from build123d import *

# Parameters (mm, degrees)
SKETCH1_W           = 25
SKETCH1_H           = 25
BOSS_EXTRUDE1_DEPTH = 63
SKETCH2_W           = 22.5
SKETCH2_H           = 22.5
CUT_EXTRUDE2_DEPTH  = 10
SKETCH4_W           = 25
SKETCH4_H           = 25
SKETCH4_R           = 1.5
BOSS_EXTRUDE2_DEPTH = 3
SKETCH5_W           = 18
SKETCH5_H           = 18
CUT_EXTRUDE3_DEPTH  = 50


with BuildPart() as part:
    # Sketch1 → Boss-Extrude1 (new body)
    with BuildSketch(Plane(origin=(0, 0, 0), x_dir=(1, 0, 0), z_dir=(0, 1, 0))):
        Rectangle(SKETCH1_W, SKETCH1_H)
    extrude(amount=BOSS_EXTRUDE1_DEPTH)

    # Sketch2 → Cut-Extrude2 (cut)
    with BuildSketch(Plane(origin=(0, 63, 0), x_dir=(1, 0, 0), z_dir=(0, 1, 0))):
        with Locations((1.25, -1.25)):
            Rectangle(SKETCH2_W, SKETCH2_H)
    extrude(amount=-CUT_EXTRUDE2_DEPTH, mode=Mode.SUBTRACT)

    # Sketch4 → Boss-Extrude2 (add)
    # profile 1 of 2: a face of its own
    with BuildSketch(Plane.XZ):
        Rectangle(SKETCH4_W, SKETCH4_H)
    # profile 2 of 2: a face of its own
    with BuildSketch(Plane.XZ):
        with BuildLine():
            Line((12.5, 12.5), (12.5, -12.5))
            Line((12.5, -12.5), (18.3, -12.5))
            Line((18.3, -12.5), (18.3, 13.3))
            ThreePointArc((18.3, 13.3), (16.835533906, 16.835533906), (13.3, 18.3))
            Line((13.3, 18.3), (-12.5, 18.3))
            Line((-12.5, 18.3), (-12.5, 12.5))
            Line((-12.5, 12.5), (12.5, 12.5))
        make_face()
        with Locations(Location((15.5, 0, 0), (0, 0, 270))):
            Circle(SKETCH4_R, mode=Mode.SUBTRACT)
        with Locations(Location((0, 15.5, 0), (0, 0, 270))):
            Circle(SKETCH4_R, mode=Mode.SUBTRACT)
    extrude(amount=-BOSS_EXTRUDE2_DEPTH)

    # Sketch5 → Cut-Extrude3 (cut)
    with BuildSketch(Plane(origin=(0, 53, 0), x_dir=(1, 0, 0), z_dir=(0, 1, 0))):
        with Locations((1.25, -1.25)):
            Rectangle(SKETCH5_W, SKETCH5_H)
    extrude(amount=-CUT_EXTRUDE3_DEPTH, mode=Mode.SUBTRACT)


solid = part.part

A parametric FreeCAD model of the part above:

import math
import FreeCAD as App
import Part
import Sketcher

V = App.Vector
Q = App.Units.Quantity

doc = App.newDocument("Part")
body = doc.addObject("PartDesign::Body", "Body")

# Sketch on XZ plane
sketch1 = doc.addObject("Sketcher::SketchObject", "Sketch")
body.addObject(sketch1)
sketch1.AttachmentSupport = (doc.XZ_Plane, [""])
sketch1.MapMode = "FlatFace"
sketch1.addGeometry([
    Part.LineSegment(V(-12, -12, 0), V(-12, 12, 0)),
    Part.LineSegment(V(-12, 12, 0), V(12, 12, 0)),
    Part.LineSegment(V(12, 12, 0), V(12, -12, 0)),
    Part.LineSegment(V(12, -12, 0), V(-12, -12, 0)),
], False)
sketch1.addConstraint([
    Sketcher.Constraint("Coincident", 0, 2, 1, 1),
    Sketcher.Constraint("Coincident", 1, 2, 2, 1),
    Sketcher.Constraint("Coincident", 2, 2, 3, 1),
    Sketcher.Constraint("Coincident", 3, 2, 0, 1),
    Sketcher.Constraint("Vertical", 0),
    Sketcher.Constraint("Horizontal", 1),
    Sketcher.Constraint("Vertical", 2),
    Sketcher.Constraint("Horizontal", 3),
    Sketcher.Constraint("Symmetric", 0, 2, 2, 2, -1, 1),
    Sketcher.Constraint("Equal", 3, 0),
    Sketcher.Constraint("DistanceX", 1, 1, 1, 2, Q("25 mm")),
])
pad1 = doc.addObject("PartDesign::Pad", "Pad")
body.addObject(pad1)
pad1.Profile = sketch1
pad1.Length = 63
pad1.Reversed = True

# Sketch on XZ plane
sketch2 = doc.addObject("Sketcher::SketchObject", "Sketch001")
body.addObject(sketch2)
sketch2.AttachmentSupport = (doc.XZ_Plane, [""])
sketch2.MapMode = "FlatFace"
sketch2.AttachmentOffset = App.Placement(V(0, 0, -63), App.Rotation())
sketch2.addGeometry([
    Part.LineSegment(V(-10, -10, 0), V(-10, 12, 0)),
    Part.LineSegment(V(-10, 12, 0), V(12, 12, 0)),
    Part.LineSegment(V(12, 12, 0), V(12, -10, 0)),
    Part.LineSegment(V(12, -10, 0), V(-10, -10, 0)),
], False)
sketch2.addConstraint([
    Sketcher.Constraint("Coincident", 0, 2, 1, 1),
    Sketcher.Constraint("Coincident", 1, 2, 2, 1),
    Sketcher.Constraint("Coincident", 2, 2, 3, 1),
    Sketcher.Constraint("Coincident", 3, 2, 0, 1),
    Sketcher.Constraint("Vertical", 0),
    Sketcher.Constraint("Horizontal", 1),
    Sketcher.Constraint("Vertical", 2),
    Sketcher.Constraint("Horizontal", 3),
    Sketcher.Constraint("Equal", 3, 0),
    Sketcher.Constraint("DistanceX", 1, 1, 1, 2, Q("22.5 mm")),
    Sketcher.Constraint("DistanceX", 0, 2, -1, 1, Q("10 mm")),
    Sketcher.Constraint("DistanceY", 2, 2, -1, 1, Q("10 mm")),
])
pocket1 = doc.addObject("PartDesign::Pocket", "Pocket")
body.addObject(pocket1)
pocket1.Profile = sketch2
pocket1.Length = 10
pocket1.Reversed = True

# Sketch on XZ plane
sketch3 = doc.addObject("Sketcher::SketchObject", "Sketch002")
body.addObject(sketch3)
sketch3.AttachmentSupport = (doc.XZ_Plane, [""])
sketch3.MapMode = "FlatFace"
sketch3.addGeometry([
    Part.LineSegment(V(-12.5, -12.5, 0), V(18.3, -12.5, 0)),  # 0
    Part.LineSegment(V(18.3, -12.5, 0), V(18.3, 13.3, 0)),  # 1
    Part.ArcOfCircle(Part.Circle(V(13.3, 13.3, 0), V(0, 0, 1), 5), math.radians(0), math.radians(90)),  # 2
    Part.LineSegment(V(13.3, 18.3, 0), V(-12.5, 18.3, 0)),  # 3
    Part.LineSegment(V(-12.5, 18.3, 0), V(-12.5, -12.5, 0)),  # 4
    Part.Circle(V(0, 15.5, 0), V(0, 0, 1), 1.5),  # 5
    Part.Circle(V(15.5, 0, 0), V(0, 0, 1), 1.5),  # 6
], False)
sketch3.addConstraint([
    Sketcher.Constraint("Coincident", 0, 2, 1, 1),
    Sketcher.Constraint("Tangent", 1, 2, 2, 1),
    Sketcher.Constraint("Tangent", 2, 2, 3, 1),
    Sketcher.Constraint("Coincident", 3, 2, 4, 1),
    Sketcher.Constraint("Coincident", 4, 2, 0, 1),
    Sketcher.Constraint("Horizontal", 0),
    Sketcher.Constraint("Vertical", 1),
    Sketcher.Constraint("Horizontal", 3),
    Sketcher.Constraint("Vertical", 4),
    Sketcher.Constraint("Equal", 5, 6),
    Sketcher.Constraint("PointOnObject", 5, 3, -2),
    Sketcher.Constraint("PointOnObject", 6, 3, -1),
    Sketcher.Constraint("Equal", 3, 1),
    Sketcher.Constraint("Diameter", 5, Q("3 mm")),
    Sketcher.Constraint("Radius", 2, Q("5 mm")),
    Sketcher.Constraint("DistanceX", 0, 1, 0, 2, Q("30.8 mm")),
    Sketcher.Constraint("DistanceY", 0, 2, 5, 3, Q("28 mm")),
    Sketcher.Constraint("DistanceX", 3, 2, 6, 3, Q("28 mm")),
    Sketcher.Constraint("DistanceX", -1, 1, 2, 3, Q("13.3 mm")),
    Sketcher.Constraint("DistanceY", -1, 1, 2, 3, Q("13.3 mm")),
])
pad2 = doc.addObject("PartDesign::Pad", "Pad001")
body.addObject(pad2)
pad2.Profile = sketch3
pad2.Length = 3
pad2.Reversed = True

# Sketch on XZ plane
sketch4 = doc.addObject("Sketcher::SketchObject", "Sketch003")
body.addObject(sketch4)
sketch4.AttachmentSupport = (doc.XZ_Plane, [""])
sketch4.MapMode = "FlatFace"
sketch4.AttachmentOffset = App.Placement(V(0, 0, -53), App.Rotation())
sketch4.addGeometry([
    Part.LineSegment(V(-8, -8, 0), V(-8, 10, 0)),
    Part.LineSegment(V(-8, 10, 0), V(10, 10, 0)),
    Part.LineSegment(V(10, 10, 0), V(10, -8, 0)),
    Part.LineSegment(V(10, -8, 0), V(-8, -8, 0)),
], False)
sketch4.addConstraint([
    Sketcher.Constraint("Coincident", 0, 2, 1, 1),
    Sketcher.Constraint("Coincident", 1, 2, 2, 1),
    Sketcher.Constraint("Coincident", 2, 2, 3, 1),
    Sketcher.Constraint("Coincident", 3, 2, 0, 1),
    Sketcher.Constraint("Vertical", 0),
    Sketcher.Constraint("Horizontal", 1),
    Sketcher.Constraint("Vertical", 2),
    Sketcher.Constraint("Horizontal", 3),
    Sketcher.Constraint("Equal", 3, 0),
    Sketcher.Constraint("DistanceX", 1, 1, 1, 2, Q("18 mm")),
    Sketcher.Constraint("DistanceX", 0, 2, -1, 1, Q("7.75 mm")),
    Sketcher.Constraint("DistanceY", -1, 1, 0, 2, Q("10.25 mm")),
])
pocket2 = doc.addObject("PartDesign::Pocket", "Pocket001")
body.addObject(pocket2)
pocket2.Profile = sketch4
pocket2.Length = 50
pocket2.Reversed = True

doc.recompute()
